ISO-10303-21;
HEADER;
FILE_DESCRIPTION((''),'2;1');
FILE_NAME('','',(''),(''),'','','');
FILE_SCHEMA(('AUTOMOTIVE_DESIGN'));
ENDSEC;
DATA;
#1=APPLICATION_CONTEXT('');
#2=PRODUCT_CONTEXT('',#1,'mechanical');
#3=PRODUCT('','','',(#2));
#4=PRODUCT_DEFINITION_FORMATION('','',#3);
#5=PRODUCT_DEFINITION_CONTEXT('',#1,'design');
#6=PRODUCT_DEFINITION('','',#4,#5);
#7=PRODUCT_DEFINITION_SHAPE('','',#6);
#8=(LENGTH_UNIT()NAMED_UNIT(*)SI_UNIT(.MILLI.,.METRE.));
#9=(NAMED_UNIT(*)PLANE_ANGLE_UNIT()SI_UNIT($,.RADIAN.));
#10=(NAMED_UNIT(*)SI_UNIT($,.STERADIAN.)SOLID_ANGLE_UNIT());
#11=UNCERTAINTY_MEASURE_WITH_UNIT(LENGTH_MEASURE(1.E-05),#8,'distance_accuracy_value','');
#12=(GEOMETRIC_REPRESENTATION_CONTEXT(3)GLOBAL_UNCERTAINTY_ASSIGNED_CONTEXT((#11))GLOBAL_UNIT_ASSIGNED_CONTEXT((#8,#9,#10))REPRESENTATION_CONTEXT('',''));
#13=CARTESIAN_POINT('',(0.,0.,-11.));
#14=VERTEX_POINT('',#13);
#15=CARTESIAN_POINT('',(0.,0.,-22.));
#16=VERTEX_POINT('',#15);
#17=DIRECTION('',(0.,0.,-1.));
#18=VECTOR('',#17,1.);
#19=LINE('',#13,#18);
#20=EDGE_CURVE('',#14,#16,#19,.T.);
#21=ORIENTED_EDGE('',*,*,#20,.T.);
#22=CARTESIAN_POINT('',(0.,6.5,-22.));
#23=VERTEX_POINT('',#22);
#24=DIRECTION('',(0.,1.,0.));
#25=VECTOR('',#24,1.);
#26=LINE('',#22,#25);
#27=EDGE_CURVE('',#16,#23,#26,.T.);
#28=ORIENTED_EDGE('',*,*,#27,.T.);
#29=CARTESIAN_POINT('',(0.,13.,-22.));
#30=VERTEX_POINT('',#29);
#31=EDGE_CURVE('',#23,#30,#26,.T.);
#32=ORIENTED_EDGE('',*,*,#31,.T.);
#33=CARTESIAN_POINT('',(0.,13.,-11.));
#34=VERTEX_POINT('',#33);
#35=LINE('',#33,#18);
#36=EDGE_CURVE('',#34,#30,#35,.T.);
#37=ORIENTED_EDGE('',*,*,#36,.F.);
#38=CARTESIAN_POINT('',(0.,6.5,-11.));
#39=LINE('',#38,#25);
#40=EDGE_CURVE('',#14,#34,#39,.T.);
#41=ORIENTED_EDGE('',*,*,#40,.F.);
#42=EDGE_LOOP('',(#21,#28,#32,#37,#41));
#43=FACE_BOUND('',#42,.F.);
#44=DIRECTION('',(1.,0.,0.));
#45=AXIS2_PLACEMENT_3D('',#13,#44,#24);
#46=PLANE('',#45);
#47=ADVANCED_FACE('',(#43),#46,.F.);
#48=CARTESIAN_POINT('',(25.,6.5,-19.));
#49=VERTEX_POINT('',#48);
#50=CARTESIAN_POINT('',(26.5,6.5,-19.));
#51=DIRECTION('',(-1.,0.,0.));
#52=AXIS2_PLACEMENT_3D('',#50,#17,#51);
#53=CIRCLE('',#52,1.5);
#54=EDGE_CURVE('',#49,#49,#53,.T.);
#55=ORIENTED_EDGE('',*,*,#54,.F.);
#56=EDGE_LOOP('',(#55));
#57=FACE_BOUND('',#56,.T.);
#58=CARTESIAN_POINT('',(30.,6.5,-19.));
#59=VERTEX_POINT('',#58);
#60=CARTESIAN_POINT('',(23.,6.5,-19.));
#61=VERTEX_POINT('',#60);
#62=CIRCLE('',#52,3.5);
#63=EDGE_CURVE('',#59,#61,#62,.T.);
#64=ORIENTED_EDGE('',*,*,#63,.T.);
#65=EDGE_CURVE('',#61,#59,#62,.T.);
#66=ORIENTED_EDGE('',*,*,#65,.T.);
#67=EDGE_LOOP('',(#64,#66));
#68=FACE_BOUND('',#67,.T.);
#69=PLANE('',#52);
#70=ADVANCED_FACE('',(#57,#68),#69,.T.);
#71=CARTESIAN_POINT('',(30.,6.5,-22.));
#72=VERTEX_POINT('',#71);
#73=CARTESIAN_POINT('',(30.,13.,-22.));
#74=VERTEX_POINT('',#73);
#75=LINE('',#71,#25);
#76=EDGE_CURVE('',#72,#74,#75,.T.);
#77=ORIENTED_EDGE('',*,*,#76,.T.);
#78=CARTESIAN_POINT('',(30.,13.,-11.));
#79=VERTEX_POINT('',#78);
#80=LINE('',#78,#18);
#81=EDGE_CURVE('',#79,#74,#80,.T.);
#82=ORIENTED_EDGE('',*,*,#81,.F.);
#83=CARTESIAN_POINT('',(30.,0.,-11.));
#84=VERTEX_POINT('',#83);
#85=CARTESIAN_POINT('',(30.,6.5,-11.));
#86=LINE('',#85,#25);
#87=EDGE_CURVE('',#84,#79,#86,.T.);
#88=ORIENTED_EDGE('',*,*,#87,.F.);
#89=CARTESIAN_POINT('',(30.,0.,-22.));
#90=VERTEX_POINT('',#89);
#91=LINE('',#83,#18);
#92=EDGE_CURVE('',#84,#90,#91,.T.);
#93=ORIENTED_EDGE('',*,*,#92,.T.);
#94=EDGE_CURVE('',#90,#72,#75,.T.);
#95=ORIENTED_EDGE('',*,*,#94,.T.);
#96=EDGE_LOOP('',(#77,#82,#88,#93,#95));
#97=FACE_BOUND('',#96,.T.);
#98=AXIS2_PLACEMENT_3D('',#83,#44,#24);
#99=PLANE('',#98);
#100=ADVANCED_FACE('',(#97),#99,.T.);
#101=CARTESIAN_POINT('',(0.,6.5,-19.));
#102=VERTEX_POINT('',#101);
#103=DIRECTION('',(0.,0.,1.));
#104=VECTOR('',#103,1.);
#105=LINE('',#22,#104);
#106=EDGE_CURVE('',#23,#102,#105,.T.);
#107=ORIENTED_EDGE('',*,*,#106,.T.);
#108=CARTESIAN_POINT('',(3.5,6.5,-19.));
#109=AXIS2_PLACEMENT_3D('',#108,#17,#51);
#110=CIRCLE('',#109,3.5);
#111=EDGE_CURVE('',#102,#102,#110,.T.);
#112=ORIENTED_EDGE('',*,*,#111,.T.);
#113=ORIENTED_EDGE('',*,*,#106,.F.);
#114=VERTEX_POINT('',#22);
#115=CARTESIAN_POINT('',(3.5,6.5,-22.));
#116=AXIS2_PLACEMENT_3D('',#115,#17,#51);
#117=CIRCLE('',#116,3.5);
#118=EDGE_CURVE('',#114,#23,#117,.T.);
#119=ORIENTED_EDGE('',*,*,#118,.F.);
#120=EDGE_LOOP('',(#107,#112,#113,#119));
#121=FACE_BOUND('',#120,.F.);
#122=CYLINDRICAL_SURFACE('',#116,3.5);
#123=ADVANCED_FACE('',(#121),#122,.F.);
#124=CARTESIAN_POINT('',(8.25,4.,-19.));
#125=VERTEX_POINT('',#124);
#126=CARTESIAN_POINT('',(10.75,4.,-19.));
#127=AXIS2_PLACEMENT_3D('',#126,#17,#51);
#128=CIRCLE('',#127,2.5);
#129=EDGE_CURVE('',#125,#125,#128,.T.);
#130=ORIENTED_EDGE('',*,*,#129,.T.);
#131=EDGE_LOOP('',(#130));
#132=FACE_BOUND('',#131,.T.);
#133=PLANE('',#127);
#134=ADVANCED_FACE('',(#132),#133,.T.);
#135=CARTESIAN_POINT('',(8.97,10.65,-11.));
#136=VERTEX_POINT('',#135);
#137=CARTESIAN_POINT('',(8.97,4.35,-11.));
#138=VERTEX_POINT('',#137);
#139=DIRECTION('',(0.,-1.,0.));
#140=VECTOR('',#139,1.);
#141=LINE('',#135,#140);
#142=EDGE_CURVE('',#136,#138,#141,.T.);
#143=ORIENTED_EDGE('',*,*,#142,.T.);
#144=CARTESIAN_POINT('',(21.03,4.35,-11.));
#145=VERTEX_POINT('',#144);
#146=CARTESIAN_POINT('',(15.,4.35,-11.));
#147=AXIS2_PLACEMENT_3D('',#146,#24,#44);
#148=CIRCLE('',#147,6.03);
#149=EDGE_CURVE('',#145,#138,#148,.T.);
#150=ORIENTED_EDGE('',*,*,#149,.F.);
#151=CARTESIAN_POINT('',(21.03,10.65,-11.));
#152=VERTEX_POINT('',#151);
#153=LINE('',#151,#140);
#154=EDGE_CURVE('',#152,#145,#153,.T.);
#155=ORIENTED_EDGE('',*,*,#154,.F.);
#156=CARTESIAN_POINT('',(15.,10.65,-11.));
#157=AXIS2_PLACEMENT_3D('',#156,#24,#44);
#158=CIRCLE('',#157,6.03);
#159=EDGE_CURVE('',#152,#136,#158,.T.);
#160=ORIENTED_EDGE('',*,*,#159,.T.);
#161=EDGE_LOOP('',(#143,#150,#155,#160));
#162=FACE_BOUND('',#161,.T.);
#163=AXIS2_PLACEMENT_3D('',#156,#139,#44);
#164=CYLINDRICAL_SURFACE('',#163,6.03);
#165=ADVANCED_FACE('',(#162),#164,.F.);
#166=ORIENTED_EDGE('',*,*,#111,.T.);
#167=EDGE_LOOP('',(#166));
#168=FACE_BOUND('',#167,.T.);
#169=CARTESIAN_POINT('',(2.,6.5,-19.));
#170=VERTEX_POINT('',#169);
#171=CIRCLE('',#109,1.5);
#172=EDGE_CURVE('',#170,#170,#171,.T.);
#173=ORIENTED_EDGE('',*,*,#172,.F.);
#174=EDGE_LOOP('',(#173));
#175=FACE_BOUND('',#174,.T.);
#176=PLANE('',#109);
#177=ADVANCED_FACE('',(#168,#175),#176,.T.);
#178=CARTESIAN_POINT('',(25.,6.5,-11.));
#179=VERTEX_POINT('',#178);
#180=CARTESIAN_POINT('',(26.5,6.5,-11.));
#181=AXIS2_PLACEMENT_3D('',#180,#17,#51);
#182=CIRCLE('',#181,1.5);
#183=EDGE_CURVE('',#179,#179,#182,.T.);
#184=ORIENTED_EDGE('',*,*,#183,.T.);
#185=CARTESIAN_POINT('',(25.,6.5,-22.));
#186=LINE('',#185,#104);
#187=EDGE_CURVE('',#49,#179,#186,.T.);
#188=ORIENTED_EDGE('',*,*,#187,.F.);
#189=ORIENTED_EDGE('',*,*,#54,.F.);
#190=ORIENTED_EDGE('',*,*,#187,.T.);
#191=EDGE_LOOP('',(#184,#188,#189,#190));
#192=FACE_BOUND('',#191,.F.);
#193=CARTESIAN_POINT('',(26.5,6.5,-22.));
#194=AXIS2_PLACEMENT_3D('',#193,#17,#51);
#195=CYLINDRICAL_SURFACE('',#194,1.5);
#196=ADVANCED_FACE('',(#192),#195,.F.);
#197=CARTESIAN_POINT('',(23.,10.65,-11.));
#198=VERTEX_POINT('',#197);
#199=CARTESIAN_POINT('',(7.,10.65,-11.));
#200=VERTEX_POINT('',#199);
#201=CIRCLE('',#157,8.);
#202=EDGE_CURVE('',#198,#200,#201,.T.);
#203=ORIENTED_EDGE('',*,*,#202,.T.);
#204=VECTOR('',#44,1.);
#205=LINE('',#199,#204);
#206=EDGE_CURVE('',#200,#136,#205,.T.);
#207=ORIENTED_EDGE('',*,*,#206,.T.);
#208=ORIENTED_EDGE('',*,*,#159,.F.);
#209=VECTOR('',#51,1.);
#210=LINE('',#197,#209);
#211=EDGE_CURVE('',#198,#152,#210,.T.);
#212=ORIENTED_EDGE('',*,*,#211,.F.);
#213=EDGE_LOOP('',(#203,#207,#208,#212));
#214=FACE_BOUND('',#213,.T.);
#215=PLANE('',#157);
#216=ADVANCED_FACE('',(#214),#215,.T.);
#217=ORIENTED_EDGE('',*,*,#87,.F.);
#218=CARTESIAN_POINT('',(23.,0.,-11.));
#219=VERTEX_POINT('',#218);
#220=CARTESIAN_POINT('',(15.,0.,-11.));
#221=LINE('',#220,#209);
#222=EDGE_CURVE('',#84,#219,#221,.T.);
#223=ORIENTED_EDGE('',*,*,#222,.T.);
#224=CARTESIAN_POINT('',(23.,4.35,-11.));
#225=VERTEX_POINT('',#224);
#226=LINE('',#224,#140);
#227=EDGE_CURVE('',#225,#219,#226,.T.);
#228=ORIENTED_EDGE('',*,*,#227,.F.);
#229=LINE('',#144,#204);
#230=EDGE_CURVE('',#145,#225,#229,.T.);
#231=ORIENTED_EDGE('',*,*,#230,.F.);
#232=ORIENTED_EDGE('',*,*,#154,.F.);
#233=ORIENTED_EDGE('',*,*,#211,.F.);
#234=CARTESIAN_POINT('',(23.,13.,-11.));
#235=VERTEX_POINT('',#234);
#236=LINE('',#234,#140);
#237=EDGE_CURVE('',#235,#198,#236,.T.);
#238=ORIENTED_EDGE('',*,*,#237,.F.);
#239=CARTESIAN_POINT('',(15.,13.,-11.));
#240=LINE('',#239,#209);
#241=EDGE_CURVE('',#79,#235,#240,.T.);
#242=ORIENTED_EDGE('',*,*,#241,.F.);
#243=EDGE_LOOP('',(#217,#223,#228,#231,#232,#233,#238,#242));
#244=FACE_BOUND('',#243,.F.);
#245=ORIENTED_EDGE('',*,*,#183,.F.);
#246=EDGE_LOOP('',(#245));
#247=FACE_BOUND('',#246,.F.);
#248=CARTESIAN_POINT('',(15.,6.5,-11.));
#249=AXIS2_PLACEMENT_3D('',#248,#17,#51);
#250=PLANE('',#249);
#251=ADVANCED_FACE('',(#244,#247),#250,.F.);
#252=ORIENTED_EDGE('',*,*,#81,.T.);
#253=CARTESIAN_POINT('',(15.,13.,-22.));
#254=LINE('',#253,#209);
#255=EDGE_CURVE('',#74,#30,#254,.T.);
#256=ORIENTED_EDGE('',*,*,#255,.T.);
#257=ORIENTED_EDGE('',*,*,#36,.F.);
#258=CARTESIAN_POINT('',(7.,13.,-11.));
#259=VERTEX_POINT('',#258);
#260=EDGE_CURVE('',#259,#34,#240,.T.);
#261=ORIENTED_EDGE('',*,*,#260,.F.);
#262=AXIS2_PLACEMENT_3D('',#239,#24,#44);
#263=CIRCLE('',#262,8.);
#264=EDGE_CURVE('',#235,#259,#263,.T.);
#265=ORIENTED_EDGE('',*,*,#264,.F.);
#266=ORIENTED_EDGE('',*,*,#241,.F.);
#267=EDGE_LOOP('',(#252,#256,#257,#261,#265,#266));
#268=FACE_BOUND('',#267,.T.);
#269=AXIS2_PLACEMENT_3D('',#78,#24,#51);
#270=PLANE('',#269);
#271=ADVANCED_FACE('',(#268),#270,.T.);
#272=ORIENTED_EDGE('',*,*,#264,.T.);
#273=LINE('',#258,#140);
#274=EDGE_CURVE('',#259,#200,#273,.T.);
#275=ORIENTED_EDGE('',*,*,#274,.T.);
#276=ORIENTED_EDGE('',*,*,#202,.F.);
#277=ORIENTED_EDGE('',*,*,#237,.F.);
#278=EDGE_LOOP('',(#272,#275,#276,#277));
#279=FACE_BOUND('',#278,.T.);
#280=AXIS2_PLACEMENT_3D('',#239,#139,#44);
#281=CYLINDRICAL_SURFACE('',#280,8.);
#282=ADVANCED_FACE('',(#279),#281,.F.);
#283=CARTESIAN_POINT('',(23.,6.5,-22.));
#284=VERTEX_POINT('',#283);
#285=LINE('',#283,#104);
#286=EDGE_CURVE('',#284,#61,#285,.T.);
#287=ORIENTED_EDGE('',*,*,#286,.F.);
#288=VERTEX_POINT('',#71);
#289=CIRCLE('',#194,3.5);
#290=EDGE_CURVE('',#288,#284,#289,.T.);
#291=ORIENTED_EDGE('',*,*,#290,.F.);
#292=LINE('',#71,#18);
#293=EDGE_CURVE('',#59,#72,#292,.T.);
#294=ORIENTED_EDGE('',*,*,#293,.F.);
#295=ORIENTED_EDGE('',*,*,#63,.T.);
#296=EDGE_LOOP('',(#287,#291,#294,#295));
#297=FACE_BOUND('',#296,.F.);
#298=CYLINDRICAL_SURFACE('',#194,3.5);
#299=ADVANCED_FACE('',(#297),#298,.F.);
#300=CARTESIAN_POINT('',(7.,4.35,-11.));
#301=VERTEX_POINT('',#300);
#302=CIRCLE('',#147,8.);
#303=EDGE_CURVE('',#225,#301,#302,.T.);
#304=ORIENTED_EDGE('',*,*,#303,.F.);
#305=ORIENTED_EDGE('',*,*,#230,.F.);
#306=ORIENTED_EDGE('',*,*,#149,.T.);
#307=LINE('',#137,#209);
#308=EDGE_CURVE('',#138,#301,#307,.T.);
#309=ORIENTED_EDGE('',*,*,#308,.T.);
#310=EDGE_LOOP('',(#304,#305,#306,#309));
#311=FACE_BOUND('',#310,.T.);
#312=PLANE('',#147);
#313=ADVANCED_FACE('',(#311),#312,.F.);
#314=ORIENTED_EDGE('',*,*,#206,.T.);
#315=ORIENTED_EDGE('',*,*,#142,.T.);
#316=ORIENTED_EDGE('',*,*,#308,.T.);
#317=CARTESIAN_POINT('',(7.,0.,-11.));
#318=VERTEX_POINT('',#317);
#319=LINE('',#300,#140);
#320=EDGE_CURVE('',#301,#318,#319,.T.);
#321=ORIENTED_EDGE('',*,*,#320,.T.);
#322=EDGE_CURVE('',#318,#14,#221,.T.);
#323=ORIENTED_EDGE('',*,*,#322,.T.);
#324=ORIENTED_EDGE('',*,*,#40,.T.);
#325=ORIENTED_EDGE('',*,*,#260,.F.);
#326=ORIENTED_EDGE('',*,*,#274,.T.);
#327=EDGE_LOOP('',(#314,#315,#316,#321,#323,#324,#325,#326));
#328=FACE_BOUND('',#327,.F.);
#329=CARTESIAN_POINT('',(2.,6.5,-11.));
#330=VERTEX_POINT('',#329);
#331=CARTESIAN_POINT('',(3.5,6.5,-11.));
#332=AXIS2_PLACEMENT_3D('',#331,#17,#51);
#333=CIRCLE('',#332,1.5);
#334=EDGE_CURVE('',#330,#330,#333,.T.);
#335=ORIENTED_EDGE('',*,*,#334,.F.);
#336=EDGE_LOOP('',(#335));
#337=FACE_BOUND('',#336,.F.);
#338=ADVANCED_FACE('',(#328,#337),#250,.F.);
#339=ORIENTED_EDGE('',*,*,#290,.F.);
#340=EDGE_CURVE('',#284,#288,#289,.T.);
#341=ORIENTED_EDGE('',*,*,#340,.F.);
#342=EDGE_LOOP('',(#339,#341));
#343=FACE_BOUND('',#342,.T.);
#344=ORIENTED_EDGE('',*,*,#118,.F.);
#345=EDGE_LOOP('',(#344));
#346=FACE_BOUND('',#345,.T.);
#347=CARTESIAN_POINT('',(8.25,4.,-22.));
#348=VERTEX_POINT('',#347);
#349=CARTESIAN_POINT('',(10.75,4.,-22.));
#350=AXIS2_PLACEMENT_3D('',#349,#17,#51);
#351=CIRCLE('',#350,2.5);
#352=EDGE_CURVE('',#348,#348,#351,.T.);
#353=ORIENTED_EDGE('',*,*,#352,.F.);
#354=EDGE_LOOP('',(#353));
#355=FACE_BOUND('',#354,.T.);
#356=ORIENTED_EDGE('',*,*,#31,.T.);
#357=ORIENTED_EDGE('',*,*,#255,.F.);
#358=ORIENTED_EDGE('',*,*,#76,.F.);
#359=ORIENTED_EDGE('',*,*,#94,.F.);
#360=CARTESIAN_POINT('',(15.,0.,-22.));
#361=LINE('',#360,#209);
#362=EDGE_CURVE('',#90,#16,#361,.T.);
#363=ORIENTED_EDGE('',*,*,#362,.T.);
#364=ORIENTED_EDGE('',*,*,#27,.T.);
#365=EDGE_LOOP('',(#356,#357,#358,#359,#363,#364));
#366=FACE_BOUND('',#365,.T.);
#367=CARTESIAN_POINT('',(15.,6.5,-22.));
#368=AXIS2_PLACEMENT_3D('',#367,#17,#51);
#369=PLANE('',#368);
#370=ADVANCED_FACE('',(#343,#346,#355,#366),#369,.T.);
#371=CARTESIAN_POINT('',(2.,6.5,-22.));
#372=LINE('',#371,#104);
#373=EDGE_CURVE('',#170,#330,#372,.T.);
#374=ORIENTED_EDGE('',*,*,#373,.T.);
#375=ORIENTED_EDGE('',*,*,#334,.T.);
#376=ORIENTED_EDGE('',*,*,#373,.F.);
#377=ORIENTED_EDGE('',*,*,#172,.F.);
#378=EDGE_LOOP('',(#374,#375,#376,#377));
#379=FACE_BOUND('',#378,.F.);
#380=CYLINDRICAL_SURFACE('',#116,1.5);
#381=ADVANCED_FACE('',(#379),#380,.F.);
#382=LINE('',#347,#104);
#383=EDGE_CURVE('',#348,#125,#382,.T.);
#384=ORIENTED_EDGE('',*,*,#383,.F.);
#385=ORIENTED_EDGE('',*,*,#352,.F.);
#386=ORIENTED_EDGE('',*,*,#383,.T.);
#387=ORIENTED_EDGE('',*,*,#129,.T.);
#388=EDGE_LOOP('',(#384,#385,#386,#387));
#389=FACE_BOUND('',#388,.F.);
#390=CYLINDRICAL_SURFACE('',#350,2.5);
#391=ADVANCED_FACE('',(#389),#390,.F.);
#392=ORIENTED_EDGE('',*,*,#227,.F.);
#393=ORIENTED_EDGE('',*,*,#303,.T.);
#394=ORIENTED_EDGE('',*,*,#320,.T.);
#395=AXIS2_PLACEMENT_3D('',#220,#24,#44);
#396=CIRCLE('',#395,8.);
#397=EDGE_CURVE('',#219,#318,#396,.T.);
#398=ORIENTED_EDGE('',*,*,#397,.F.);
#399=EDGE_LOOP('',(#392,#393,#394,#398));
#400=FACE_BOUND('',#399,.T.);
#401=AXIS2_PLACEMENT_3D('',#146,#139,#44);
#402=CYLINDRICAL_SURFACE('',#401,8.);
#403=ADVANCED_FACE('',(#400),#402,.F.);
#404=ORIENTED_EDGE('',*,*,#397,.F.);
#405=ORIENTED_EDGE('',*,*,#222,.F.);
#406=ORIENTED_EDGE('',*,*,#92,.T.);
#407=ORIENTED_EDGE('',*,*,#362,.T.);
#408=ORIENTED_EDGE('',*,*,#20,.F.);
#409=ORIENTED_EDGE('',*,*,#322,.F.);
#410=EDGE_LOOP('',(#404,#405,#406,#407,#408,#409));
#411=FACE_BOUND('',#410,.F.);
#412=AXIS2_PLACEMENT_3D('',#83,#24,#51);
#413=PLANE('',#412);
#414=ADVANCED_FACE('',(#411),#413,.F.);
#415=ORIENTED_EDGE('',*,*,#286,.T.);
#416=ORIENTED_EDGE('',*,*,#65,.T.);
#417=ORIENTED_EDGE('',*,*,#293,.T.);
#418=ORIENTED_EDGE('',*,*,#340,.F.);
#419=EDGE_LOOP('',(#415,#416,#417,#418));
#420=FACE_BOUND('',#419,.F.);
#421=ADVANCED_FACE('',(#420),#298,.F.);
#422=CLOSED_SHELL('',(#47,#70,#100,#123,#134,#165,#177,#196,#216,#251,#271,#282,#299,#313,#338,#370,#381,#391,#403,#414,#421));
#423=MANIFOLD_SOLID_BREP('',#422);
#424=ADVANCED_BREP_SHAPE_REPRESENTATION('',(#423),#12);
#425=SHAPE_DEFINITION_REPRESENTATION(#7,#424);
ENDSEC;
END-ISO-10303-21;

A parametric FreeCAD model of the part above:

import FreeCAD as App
import Part
import Sketcher


def add_polygon(sketch, points):
    """Adds a closed chain of lines whose ends are joined by coincident constraints."""
    first, n = sketch.GeometryCount, len(points)
    for a, b in zip(points, points[1:] + points[:1]):
        sketch.addGeometry(Part.LineSegment(App.Vector(*a, 0), App.Vector(*b, 0)), False)
    for i in range(n):
        sketch.addConstraint(Sketcher.Constraint("Coincident", first + i, 2, first + (i + 1) % n, 1))

doc = App.newDocument("Part")
body = doc.addObject("PartDesign::Body", "Body")

sketch1 = body.newObject("Sketcher::SketchObject", "Sketch")
sketch1.AttachmentSupport = (doc.getObject("XY_Plane"), [""])
sketch1.MapMode = "FlatFace"
add_polygon(sketch1, [(-40, 13), (-40, 0), (-10, 0), (-10, 13)])
sketch1.addConstraint([
    Sketcher.Constraint("Vertical", 0),
    Sketcher.Constraint("Horizontal", 1),
    Sketcher.Constraint("Vertical", 2),
    Sketcher.Constraint("Horizontal", 3),
    Sketcher.Constraint("PointOnObject", 0, 2, -1),
    Sketcher.Constraint("DistanceX", 1, 1, 1, 2, 30.0),
    Sketcher.Constraint("DistanceY", 0, 2, 0, 1, 13.0),
    Sketcher.Constraint("DistanceX", 0, 2, -1, 1, 40.0),
])
pad1 = body.newObject("PartDesign::Pad", "Pad")
pad1.Profile = sketch1
pad1.Length = 11

sketch2 = body.newObject("Sketcher::SketchObject", "Sketch001")
sketch2.AttachmentSupport = (doc.getObject("XY_Plane"), [""])
sketch2.MapMode = "FlatFace"
add_polygon(sketch2, [(-33, 10.65), (-33, 13), (-25, 13), (-25, 0), (-33, 0), (-33, 4.35), (-31.03, 4.35), (-31.03, 10.65)])
sketch2.addGeometry(Part.LineSegment(App.Vector(-25, 0, 0), App.Vector(-25, 13, 0)), True)
sketch2.addConstraint([
    Sketcher.Constraint("Vertical", 0),
    Sketcher.Constraint("Horizontal", 1),
    Sketcher.Constraint("Vertical", 2),
    Sketcher.Constraint("Horizontal", 3),
    Sketcher.Constraint("Vertical", 4),
    Sketcher.Constraint("Horizontal", 5),
    Sketcher.Constraint("Vertical", 6),
    Sketcher.Constraint("Horizontal", 7),
    Sketcher.Constraint("Vertical", 8),
    Sketcher.Constraint("Coincident", 8, 1, 2, 2),
    Sketcher.Constraint("PointOnObject", 2, 2, -1),
    Sketcher.Constraint("Horizontal", 0, 2, 8, 2),
    Sketcher.Constraint("Vertical", 0, 2, 3, 2),
    Sketcher.Constraint("DistanceX", 1, 1, 1, 2, 8.0),
    Sketcher.Constraint("DistanceY", 2, 2, 2, 1, 13.0),
    Sketcher.Constraint("DistanceY", 6, 1, 6, 2, 6.3),
    Sketcher.Constraint("DistanceX", 0, 2, -1, 1, 33.0),
    Sketcher.Constraint("DistanceX", 5, 1, 5, 2, 1.97),
    Sketcher.Constraint("DistanceY", 0, 1, 0, 2, 2.35),
])
groove = body.newObject("PartDesign::Groove", "Groove")
groove.Profile = sketch2
groove.ReferenceAxis = (sketch2, ["Axis0"])
groove.Angle = 180

sketch3 = body.newObject("Sketcher::SketchObject", "Sketch002")
sketch3.AttachmentSupport = (doc.getObject("XY_Plane"), [""])
sketch3.MapMode = "FlatFace"
sketch3.AttachmentOffset = App.Placement(App.Vector(0, 0, 11), App.Rotation())
sketch3.addGeometry([
    Part.Circle(App.Vector(-36.5, 6.5, 0), App.Vector(0, 0, 1), 1.5),
    Part.Circle(App.Vector(-13.5, 6.5, 0), App.Vector(0, 0, 1), 1.5),
], False)
sketch3.addConstraint([
    Sketcher.Constraint("Equal", 0, 1),
    Sketcher.Constraint("Horizontal", 0, 3, 1, 3),
    Sketcher.Constraint("Diameter", 0, 3.0),
    Sketcher.Constraint("DistanceX", 0, 3, 1, 3, 23.0),
    Sketcher.Constraint("DistanceX", 0, 3, -1, 1, 36.5),
    Sketcher.Constraint("DistanceY", -1, 1, 0, 3, 6.5),
])
pocket1 = body.newObject("PartDesign::Pocket", "Pocket")
pocket1.Profile = sketch3
pocket1.Length = 20

sketch4 = body.newObject("Sketcher::SketchObject", "Sketch003")
sketch4.AttachmentSupport = (doc.getObject("XY_Plane"), [""])
sketch4.MapMode = "FlatFace"
sketch4.AttachmentOffset = App.Placement(App.Vector(0, 0, 11), App.Rotation())
sketch4.addGeometry([
    Part.Circle(App.Vector(-36.5, 6.5, 0), App.Vector(0, 0, 1), 3.5),
    Part.Circle(App.Vector(-13.5, 6.5, 0), App.Vector(0, 0, 1), 3.5),
], False)
sketch4.addConstraint([
    Sketcher.Constraint("Equal", 0, 1),
    Sketcher.Constraint("Horizontal", 0, 3, 1, 3),
    Sketcher.Constraint("Diameter", 0, 7.0),
    Sketcher.Constraint("DistanceX", 0, 3, 1, 3, 23.0),
    Sketcher.Constraint("DistanceX", 0, 3, -1, 1, 36.5),
    Sketcher.Constraint("DistanceY", -1, 1, 0, 3, 6.5),
])
pocket2 = body.newObject("PartDesign::Pocket", "Pocket001")
pocket2.Profile = sketch4
pocket2.Length = 3

sketch5 = body.newObject("Sketcher::SketchObject", "Sketch004")
sketch5.AttachmentSupport = (doc.getObject("XY_Plane"), [""])
sketch5.MapMode = "FlatFace"
sketch5.AttachmentOffset = App.Placement(App.Vector(0, 0, 11), App.Rotation())
sketch5.addGeometry(Part.Circle(App.Vector(-20.75, 4, 0), App.Vector(0, 0, 1), 2.5), False)
sketch5.addConstraint([
    Sketcher.Constraint("Diameter", 0, 5.0),
    Sketcher.Constraint("DistanceY", -1, 1, 0, 3, 4.0),
    Sketcher.Constraint("DistanceX", 0, 3, -1, 1, 20.75),
])
pocket3 = body.newObject("PartDesign::Pocket", "Pocket002")
pocket3.Profile = sketch5
pocket3.Length = 3
body2 = doc.addObject("PartDesign::Body", "Body001")
doc.recompute()

body.Placement = App.Placement(App.Vector(-10, 0, -11), App.Rotation(App.Vector(0, 1, 0), 180))
boolean = body2.newObject("PartDesign::Boolean", "Boolean")
boolean.Type = "Fuse"
boolean.addObjects([body])

doc.recompute()
